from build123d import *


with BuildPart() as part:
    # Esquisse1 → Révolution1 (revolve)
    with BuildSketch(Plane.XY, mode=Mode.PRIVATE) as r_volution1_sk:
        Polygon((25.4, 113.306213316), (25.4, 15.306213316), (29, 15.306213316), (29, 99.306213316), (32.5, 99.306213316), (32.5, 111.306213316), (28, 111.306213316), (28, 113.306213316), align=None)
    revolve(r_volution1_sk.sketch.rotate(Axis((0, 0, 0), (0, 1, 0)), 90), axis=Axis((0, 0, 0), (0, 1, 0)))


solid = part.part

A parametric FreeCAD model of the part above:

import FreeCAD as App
import Part
import Sketcher

V = App.Vector

doc = App.newDocument("Part")
body = doc.addObject("PartDesign::Body", "Body")

sketch1 = body.newObject("Sketcher::SketchObject", "Sketch")
sketch1.AttachmentSupport = (doc.getObject("XY_Plane"), [""])
sketch1.MapMode = "FlatFace"
sketch1.addGeometry(Part.LineSegment(V(25.4, 113.3, 0), V(25.4, 15.3, 0)), False)
sketch1.addGeometry(Part.LineSegment(V(25.4, 15.3, 0), V(29, 15.3, 0)), False)
sketch1.addGeometry(Part.LineSegment(V(29, 15.3, 0), V(29, 99.3, 0)), False)
sketch1.addGeometry(Part.LineSegment(V(29, 99.3, 0), V(32.5, 99.3, 0)), False)
sketch1.addGeometry(Part.LineSegment(V(32.5, 99.3, 0), V(32.5, 111.3, 0)), False)
sketch1.addGeometry(Part.LineSegment(V(32.5, 111.3, 0), V(28, 111.3, 0)), False)
sketch1.addGeometry(Part.LineSegment(V(28, 111.3, 0), V(28, 113.3, 0)), False)
sketch1.addGeometry(Part.LineSegment(V(28, 113.3, 0), V(25.4, 113.3, 0)), False)
sketch1.addConstraint(Sketcher.Constraint("Coincident", 0, 2, 1, 1))
sketch1.addConstraint(Sketcher.Constraint("Coincident", 1, 2, 2, 1))
sketch1.addConstraint(Sketcher.Constraint("Coincident", 2, 2, 3, 1))
sketch1.addConstraint(Sketcher.Constraint("Coincident", 3, 2, 4, 1))
sketch1.addConstraint(Sketcher.Constraint("Coincident", 4, 2, 5, 1))
sketch1.addConstraint(Sketcher.Constraint("Coincident", 5, 2, 6, 1))
sketch1.addConstraint(Sketcher.Constraint("Coincident", 6, 2, 7, 1))
sketch1.addConstraint(Sketcher.Constraint("Coincident", 7, 2, 0, 1))
sketch1.addConstraint(Sketcher.Constraint("Vertical", 0))
sketch1.addConstraint(Sketcher.Constraint("Horizontal", 1))
sketch1.addConstraint(Sketcher.Constraint("Vertical", 2))
sketch1.addConstraint(Sketcher.Constraint("Horizontal", 3))
sketch1.addConstraint(Sketcher.Constraint("Vertical", 4))
sketch1.addConstraint(Sketcher.Constraint("Horizontal", 5))
sketch1.addConstraint(Sketcher.Constraint("Vertical", 6))
sketch1.addConstraint(Sketcher.Constraint("Horizontal", 7))
sketch1.addConstraint(Sketcher.Constraint("DistanceY", 0, 2, 0, 1, 98.0))
sketch1.addConstraint(Sketcher.Constraint("DistanceY", 2, 1, 2, 2, 84.0))
sketch1.addConstraint(Sketcher.Constraint("DistanceY", 4, 1, 4, 2, 12.0))
sketch1.addConstraint(Sketcher.Constraint("DistanceX", 1, 1, 1, 2, 3.6))
sketch1.addConstraint(Sketcher.Constraint("DistanceX", 3, 1, 3, 2, 3.5))
sketch1.addConstraint(Sketcher.Constraint("DistanceX", 5, 2, 5, 1, 4.5))
sketch1.addConstraint(Sketcher.Constraint("DistanceX", -1, 1, 1, 2, 29.0))
sketch1.addConstraint(Sketcher.Constraint("DistanceY", -1, 1, 0, 2, 15.306213))
revolution = body.newObject("PartDesign::Revolution", "Revolution")
revolution.Profile = sketch1
revolution.ReferenceAxis = (sketch1, ["V_Axis"])
revolution.Angle = 360

doc.recompute()
